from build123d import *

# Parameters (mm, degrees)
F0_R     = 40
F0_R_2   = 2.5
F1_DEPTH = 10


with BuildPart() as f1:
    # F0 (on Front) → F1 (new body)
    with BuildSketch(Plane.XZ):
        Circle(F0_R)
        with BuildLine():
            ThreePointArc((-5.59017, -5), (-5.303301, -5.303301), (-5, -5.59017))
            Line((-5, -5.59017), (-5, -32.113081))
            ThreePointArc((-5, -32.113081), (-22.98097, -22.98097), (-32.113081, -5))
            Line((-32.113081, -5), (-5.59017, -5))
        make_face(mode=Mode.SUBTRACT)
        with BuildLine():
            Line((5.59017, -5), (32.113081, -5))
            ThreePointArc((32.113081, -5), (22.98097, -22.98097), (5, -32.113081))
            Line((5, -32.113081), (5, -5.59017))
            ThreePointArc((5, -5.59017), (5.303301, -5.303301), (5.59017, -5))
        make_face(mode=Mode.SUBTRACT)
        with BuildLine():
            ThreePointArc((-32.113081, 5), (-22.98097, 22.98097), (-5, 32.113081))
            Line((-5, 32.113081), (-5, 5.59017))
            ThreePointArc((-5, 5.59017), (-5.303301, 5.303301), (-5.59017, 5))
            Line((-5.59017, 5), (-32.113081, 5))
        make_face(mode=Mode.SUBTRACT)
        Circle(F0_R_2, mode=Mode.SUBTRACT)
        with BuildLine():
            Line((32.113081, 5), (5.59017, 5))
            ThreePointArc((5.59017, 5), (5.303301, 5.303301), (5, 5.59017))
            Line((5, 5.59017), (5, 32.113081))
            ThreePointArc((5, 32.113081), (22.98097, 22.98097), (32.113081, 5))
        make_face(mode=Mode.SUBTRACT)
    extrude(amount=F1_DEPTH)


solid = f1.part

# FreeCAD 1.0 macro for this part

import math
import FreeCAD as App
import Part
import Sketcher

V = App.Vector
Q = App.Units.Quantity

doc = App.newDocument("Part")
body = doc.addObject("PartDesign::Body", "Body")

sketch1 = body.newObject("Sketcher::SketchObject", "Sketch")
sketch1.AttachmentSupport = (doc.getObject("XZ_Plane"), [""])
sketch1.MapMode = "FlatFace"
sketch1.addGeometry([
    Part.Circle(V(0, 0, 0), V(0, 0, 1), 40),
    Part.LineSegment(V(-32.113081, -5, 0), V(-5.59017, -5, 0)),
    Part.ArcOfCircle(Part.Circle(V(-0.000072, -0.000072, 0), V(0, 0, 1), 7.499898), math.radians(-138.189729), math.radians(-131.810271)),
    Part.LineSegment(V(-5, -5.59017, 0), V(-5, -32.113081, 0)),
    Part.ArcOfCircle(Part.Circle(V(0, 0, 0), V(0, 0, 1), 32.5), math.radians(-171.150116), math.radians(-98.849884)),
    Part.ArcOfCircle(Part.Circle(V(0.000072, -0.000072, 0), V(0, 0, 1), 7.499898), math.radians(-48.189729), math.radians(-41.810271)),
    Part.LineSegment(V(5.59017, -5, 0), V(32.113081, -5, 0)),
    Part.ArcOfCircle(Part.Circle(V(0, 0, 0), V(0, 0, 1), 32.5), math.radians(-81.150116), math.radians(-8.849884)),
    Part.LineSegment(V(5, -32.113081, 0), V(5, -5.59017, 0)),
    Part.LineSegment(V(-5.59017, 5, 0), V(-32.113081, 5, 0)),
    Part.ArcOfCircle(Part.Circle(V(0, 0, 0), V(0, 0, 1), 32.5), math.radians(98.849884), math.radians(171.150116)),
    Part.LineSegment(V(-5, 32.113081, 0), V(-5, 5.59017, 0)),
    Part.ArcOfCircle(Part.Circle(V(-0.000072, 0.000072, 0), V(0, 0, 1), 7.499898), math.radians(131.810271), math.radians(138.189729)),
    Part.Circle(V(0, 0, 0), V(0, 0, 1), 2.5),
    Part.ArcOfCircle(Part.Circle(V(0, 0, 0), V(0, 0, 1), 32.5), math.radians(8.849884), math.radians(81.150116)),
    Part.LineSegment(V(32.113081, 5, 0), V(5.59017, 5, 0)),
    Part.ArcOfCircle(Part.Circle(V(0.000072, 0.000072, 0), V(0, 0, 1), 7.499898), math.radians(41.810271), math.radians(48.189729)),
    Part.LineSegment(V(5, 5.59017, 0), V(5, 32.113081, 0)),
], False)
sketch1.addConstraint([
    Sketcher.Constraint("Coincident", 1, 2, 2, 1),
    Sketcher.Constraint("Coincident", 2, 2, 3, 1),
    Sketcher.Constraint("Coincident", 3, 2, 4, 2),
    Sketcher.Constraint("Coincident", 4, 1, 1, 1),
    Sketcher.Constraint("Coincident", 5, 2, 6, 1),
    Sketcher.Constraint("Coincident", 6, 2, 7, 2),
    Sketcher.Constraint("Coincident", 7, 1, 8, 1),
    Sketcher.Constraint("Coincident", 8, 2, 5, 1),
    Sketcher.Constraint("Coincident", 9, 2, 10, 2),
    Sketcher.Constraint("Coincident", 10, 1, 11, 1),
    Sketcher.Constraint("Coincident", 11, 2, 12, 1),
    Sketcher.Constraint("Coincident", 12, 2, 9, 1),
    Sketcher.Constraint("Coincident", 14, 1, 15, 1),
    Sketcher.Constraint("Coincident", 15, 2, 16, 1),
    Sketcher.Constraint("Coincident", 16, 2, 17, 1),
    Sketcher.Constraint("Coincident", 17, 2, 14, 2),
    Sketcher.Constraint("Horizontal", 1),
    Sketcher.Constraint("Vertical", 3),
    Sketcher.Constraint("Horizontal", 6),
    Sketcher.Constraint("Vertical", 8),
    Sketcher.Constraint("Horizontal", 9),
    Sketcher.Constraint("Vertical", 11),
    Sketcher.Constraint("Horizontal", 15),
    Sketcher.Constraint("Vertical", 17),
    Sketcher.Constraint("Coincident", 0, 3, -1, 1),
    Sketcher.Constraint("Coincident", 4, 3, -1, 1),
    Sketcher.Constraint("Coincident", 7, 3, -1, 1),
    Sketcher.Constraint("Coincident", 10, 3, -1, 1),
    Sketcher.Constraint("Coincident", 13, 3, -1, 1),
    Sketcher.Constraint("Coincident", 14, 3, -1, 1),
    Sketcher.Constraint("Equal", 2, 5),
    Sketcher.Constraint("Equal", 4, 7),
    Sketcher.Constraint("Equal", 7, 10),
    Sketcher.Constraint("Equal", 5, 12),
    Sketcher.Constraint("Equal", 10, 14),
    Sketcher.Constraint("Equal", 12, 16),
    Sketcher.Constraint("Symmetric", 5, 3, 12, 3, -1, 1),
    Sketcher.Constraint("Symmetric", 2, 3, 16, 3, -1, 1),
    Sketcher.Constraint("Symmetric", 2, 3, 5, 3, -2),
    Sketcher.Constraint("Horizontal", 4, 1, 5, 2),
    Sketcher.Constraint("Horizontal", 3, 2, 7, 1),
    Sketcher.Constraint("Horizontal", 12, 2, 14, 1),
    Sketcher.Constraint("Horizontal", 11, 2, 16, 2),
    Sketcher.Constraint("Vertical", 4, 1, 9, 2),
    Sketcher.Constraint("Vertical", 3, 2, 10, 1),
    Sketcher.Constraint("Equal", 15, 3),
    Sketcher.Constraint("Diameter", 0, Q("80 mm")),
    Sketcher.Constraint("Diameter", 13, Q("5 mm")),
    Sketcher.Constraint("Radius", 4, Q("32.5 mm")),
    Sketcher.Constraint("DistanceY", 1, 2, -1, 1, Q("5 mm")),
    Sketcher.Constraint("DistanceX", 2, 2, -1, 1, Q("5 mm")),
    Sketcher.Constraint("Radius", 2, Q("7.499898 mm")),
    Sketcher.Constraint("DistanceX", 1, 1, 1, 2, Q("26.522911 mm")),
])
pad1 = body.newObject("PartDesign::Pad", "Pad")
pad1.Profile = sketch1
pad1.Length = 10

doc.recompute()
